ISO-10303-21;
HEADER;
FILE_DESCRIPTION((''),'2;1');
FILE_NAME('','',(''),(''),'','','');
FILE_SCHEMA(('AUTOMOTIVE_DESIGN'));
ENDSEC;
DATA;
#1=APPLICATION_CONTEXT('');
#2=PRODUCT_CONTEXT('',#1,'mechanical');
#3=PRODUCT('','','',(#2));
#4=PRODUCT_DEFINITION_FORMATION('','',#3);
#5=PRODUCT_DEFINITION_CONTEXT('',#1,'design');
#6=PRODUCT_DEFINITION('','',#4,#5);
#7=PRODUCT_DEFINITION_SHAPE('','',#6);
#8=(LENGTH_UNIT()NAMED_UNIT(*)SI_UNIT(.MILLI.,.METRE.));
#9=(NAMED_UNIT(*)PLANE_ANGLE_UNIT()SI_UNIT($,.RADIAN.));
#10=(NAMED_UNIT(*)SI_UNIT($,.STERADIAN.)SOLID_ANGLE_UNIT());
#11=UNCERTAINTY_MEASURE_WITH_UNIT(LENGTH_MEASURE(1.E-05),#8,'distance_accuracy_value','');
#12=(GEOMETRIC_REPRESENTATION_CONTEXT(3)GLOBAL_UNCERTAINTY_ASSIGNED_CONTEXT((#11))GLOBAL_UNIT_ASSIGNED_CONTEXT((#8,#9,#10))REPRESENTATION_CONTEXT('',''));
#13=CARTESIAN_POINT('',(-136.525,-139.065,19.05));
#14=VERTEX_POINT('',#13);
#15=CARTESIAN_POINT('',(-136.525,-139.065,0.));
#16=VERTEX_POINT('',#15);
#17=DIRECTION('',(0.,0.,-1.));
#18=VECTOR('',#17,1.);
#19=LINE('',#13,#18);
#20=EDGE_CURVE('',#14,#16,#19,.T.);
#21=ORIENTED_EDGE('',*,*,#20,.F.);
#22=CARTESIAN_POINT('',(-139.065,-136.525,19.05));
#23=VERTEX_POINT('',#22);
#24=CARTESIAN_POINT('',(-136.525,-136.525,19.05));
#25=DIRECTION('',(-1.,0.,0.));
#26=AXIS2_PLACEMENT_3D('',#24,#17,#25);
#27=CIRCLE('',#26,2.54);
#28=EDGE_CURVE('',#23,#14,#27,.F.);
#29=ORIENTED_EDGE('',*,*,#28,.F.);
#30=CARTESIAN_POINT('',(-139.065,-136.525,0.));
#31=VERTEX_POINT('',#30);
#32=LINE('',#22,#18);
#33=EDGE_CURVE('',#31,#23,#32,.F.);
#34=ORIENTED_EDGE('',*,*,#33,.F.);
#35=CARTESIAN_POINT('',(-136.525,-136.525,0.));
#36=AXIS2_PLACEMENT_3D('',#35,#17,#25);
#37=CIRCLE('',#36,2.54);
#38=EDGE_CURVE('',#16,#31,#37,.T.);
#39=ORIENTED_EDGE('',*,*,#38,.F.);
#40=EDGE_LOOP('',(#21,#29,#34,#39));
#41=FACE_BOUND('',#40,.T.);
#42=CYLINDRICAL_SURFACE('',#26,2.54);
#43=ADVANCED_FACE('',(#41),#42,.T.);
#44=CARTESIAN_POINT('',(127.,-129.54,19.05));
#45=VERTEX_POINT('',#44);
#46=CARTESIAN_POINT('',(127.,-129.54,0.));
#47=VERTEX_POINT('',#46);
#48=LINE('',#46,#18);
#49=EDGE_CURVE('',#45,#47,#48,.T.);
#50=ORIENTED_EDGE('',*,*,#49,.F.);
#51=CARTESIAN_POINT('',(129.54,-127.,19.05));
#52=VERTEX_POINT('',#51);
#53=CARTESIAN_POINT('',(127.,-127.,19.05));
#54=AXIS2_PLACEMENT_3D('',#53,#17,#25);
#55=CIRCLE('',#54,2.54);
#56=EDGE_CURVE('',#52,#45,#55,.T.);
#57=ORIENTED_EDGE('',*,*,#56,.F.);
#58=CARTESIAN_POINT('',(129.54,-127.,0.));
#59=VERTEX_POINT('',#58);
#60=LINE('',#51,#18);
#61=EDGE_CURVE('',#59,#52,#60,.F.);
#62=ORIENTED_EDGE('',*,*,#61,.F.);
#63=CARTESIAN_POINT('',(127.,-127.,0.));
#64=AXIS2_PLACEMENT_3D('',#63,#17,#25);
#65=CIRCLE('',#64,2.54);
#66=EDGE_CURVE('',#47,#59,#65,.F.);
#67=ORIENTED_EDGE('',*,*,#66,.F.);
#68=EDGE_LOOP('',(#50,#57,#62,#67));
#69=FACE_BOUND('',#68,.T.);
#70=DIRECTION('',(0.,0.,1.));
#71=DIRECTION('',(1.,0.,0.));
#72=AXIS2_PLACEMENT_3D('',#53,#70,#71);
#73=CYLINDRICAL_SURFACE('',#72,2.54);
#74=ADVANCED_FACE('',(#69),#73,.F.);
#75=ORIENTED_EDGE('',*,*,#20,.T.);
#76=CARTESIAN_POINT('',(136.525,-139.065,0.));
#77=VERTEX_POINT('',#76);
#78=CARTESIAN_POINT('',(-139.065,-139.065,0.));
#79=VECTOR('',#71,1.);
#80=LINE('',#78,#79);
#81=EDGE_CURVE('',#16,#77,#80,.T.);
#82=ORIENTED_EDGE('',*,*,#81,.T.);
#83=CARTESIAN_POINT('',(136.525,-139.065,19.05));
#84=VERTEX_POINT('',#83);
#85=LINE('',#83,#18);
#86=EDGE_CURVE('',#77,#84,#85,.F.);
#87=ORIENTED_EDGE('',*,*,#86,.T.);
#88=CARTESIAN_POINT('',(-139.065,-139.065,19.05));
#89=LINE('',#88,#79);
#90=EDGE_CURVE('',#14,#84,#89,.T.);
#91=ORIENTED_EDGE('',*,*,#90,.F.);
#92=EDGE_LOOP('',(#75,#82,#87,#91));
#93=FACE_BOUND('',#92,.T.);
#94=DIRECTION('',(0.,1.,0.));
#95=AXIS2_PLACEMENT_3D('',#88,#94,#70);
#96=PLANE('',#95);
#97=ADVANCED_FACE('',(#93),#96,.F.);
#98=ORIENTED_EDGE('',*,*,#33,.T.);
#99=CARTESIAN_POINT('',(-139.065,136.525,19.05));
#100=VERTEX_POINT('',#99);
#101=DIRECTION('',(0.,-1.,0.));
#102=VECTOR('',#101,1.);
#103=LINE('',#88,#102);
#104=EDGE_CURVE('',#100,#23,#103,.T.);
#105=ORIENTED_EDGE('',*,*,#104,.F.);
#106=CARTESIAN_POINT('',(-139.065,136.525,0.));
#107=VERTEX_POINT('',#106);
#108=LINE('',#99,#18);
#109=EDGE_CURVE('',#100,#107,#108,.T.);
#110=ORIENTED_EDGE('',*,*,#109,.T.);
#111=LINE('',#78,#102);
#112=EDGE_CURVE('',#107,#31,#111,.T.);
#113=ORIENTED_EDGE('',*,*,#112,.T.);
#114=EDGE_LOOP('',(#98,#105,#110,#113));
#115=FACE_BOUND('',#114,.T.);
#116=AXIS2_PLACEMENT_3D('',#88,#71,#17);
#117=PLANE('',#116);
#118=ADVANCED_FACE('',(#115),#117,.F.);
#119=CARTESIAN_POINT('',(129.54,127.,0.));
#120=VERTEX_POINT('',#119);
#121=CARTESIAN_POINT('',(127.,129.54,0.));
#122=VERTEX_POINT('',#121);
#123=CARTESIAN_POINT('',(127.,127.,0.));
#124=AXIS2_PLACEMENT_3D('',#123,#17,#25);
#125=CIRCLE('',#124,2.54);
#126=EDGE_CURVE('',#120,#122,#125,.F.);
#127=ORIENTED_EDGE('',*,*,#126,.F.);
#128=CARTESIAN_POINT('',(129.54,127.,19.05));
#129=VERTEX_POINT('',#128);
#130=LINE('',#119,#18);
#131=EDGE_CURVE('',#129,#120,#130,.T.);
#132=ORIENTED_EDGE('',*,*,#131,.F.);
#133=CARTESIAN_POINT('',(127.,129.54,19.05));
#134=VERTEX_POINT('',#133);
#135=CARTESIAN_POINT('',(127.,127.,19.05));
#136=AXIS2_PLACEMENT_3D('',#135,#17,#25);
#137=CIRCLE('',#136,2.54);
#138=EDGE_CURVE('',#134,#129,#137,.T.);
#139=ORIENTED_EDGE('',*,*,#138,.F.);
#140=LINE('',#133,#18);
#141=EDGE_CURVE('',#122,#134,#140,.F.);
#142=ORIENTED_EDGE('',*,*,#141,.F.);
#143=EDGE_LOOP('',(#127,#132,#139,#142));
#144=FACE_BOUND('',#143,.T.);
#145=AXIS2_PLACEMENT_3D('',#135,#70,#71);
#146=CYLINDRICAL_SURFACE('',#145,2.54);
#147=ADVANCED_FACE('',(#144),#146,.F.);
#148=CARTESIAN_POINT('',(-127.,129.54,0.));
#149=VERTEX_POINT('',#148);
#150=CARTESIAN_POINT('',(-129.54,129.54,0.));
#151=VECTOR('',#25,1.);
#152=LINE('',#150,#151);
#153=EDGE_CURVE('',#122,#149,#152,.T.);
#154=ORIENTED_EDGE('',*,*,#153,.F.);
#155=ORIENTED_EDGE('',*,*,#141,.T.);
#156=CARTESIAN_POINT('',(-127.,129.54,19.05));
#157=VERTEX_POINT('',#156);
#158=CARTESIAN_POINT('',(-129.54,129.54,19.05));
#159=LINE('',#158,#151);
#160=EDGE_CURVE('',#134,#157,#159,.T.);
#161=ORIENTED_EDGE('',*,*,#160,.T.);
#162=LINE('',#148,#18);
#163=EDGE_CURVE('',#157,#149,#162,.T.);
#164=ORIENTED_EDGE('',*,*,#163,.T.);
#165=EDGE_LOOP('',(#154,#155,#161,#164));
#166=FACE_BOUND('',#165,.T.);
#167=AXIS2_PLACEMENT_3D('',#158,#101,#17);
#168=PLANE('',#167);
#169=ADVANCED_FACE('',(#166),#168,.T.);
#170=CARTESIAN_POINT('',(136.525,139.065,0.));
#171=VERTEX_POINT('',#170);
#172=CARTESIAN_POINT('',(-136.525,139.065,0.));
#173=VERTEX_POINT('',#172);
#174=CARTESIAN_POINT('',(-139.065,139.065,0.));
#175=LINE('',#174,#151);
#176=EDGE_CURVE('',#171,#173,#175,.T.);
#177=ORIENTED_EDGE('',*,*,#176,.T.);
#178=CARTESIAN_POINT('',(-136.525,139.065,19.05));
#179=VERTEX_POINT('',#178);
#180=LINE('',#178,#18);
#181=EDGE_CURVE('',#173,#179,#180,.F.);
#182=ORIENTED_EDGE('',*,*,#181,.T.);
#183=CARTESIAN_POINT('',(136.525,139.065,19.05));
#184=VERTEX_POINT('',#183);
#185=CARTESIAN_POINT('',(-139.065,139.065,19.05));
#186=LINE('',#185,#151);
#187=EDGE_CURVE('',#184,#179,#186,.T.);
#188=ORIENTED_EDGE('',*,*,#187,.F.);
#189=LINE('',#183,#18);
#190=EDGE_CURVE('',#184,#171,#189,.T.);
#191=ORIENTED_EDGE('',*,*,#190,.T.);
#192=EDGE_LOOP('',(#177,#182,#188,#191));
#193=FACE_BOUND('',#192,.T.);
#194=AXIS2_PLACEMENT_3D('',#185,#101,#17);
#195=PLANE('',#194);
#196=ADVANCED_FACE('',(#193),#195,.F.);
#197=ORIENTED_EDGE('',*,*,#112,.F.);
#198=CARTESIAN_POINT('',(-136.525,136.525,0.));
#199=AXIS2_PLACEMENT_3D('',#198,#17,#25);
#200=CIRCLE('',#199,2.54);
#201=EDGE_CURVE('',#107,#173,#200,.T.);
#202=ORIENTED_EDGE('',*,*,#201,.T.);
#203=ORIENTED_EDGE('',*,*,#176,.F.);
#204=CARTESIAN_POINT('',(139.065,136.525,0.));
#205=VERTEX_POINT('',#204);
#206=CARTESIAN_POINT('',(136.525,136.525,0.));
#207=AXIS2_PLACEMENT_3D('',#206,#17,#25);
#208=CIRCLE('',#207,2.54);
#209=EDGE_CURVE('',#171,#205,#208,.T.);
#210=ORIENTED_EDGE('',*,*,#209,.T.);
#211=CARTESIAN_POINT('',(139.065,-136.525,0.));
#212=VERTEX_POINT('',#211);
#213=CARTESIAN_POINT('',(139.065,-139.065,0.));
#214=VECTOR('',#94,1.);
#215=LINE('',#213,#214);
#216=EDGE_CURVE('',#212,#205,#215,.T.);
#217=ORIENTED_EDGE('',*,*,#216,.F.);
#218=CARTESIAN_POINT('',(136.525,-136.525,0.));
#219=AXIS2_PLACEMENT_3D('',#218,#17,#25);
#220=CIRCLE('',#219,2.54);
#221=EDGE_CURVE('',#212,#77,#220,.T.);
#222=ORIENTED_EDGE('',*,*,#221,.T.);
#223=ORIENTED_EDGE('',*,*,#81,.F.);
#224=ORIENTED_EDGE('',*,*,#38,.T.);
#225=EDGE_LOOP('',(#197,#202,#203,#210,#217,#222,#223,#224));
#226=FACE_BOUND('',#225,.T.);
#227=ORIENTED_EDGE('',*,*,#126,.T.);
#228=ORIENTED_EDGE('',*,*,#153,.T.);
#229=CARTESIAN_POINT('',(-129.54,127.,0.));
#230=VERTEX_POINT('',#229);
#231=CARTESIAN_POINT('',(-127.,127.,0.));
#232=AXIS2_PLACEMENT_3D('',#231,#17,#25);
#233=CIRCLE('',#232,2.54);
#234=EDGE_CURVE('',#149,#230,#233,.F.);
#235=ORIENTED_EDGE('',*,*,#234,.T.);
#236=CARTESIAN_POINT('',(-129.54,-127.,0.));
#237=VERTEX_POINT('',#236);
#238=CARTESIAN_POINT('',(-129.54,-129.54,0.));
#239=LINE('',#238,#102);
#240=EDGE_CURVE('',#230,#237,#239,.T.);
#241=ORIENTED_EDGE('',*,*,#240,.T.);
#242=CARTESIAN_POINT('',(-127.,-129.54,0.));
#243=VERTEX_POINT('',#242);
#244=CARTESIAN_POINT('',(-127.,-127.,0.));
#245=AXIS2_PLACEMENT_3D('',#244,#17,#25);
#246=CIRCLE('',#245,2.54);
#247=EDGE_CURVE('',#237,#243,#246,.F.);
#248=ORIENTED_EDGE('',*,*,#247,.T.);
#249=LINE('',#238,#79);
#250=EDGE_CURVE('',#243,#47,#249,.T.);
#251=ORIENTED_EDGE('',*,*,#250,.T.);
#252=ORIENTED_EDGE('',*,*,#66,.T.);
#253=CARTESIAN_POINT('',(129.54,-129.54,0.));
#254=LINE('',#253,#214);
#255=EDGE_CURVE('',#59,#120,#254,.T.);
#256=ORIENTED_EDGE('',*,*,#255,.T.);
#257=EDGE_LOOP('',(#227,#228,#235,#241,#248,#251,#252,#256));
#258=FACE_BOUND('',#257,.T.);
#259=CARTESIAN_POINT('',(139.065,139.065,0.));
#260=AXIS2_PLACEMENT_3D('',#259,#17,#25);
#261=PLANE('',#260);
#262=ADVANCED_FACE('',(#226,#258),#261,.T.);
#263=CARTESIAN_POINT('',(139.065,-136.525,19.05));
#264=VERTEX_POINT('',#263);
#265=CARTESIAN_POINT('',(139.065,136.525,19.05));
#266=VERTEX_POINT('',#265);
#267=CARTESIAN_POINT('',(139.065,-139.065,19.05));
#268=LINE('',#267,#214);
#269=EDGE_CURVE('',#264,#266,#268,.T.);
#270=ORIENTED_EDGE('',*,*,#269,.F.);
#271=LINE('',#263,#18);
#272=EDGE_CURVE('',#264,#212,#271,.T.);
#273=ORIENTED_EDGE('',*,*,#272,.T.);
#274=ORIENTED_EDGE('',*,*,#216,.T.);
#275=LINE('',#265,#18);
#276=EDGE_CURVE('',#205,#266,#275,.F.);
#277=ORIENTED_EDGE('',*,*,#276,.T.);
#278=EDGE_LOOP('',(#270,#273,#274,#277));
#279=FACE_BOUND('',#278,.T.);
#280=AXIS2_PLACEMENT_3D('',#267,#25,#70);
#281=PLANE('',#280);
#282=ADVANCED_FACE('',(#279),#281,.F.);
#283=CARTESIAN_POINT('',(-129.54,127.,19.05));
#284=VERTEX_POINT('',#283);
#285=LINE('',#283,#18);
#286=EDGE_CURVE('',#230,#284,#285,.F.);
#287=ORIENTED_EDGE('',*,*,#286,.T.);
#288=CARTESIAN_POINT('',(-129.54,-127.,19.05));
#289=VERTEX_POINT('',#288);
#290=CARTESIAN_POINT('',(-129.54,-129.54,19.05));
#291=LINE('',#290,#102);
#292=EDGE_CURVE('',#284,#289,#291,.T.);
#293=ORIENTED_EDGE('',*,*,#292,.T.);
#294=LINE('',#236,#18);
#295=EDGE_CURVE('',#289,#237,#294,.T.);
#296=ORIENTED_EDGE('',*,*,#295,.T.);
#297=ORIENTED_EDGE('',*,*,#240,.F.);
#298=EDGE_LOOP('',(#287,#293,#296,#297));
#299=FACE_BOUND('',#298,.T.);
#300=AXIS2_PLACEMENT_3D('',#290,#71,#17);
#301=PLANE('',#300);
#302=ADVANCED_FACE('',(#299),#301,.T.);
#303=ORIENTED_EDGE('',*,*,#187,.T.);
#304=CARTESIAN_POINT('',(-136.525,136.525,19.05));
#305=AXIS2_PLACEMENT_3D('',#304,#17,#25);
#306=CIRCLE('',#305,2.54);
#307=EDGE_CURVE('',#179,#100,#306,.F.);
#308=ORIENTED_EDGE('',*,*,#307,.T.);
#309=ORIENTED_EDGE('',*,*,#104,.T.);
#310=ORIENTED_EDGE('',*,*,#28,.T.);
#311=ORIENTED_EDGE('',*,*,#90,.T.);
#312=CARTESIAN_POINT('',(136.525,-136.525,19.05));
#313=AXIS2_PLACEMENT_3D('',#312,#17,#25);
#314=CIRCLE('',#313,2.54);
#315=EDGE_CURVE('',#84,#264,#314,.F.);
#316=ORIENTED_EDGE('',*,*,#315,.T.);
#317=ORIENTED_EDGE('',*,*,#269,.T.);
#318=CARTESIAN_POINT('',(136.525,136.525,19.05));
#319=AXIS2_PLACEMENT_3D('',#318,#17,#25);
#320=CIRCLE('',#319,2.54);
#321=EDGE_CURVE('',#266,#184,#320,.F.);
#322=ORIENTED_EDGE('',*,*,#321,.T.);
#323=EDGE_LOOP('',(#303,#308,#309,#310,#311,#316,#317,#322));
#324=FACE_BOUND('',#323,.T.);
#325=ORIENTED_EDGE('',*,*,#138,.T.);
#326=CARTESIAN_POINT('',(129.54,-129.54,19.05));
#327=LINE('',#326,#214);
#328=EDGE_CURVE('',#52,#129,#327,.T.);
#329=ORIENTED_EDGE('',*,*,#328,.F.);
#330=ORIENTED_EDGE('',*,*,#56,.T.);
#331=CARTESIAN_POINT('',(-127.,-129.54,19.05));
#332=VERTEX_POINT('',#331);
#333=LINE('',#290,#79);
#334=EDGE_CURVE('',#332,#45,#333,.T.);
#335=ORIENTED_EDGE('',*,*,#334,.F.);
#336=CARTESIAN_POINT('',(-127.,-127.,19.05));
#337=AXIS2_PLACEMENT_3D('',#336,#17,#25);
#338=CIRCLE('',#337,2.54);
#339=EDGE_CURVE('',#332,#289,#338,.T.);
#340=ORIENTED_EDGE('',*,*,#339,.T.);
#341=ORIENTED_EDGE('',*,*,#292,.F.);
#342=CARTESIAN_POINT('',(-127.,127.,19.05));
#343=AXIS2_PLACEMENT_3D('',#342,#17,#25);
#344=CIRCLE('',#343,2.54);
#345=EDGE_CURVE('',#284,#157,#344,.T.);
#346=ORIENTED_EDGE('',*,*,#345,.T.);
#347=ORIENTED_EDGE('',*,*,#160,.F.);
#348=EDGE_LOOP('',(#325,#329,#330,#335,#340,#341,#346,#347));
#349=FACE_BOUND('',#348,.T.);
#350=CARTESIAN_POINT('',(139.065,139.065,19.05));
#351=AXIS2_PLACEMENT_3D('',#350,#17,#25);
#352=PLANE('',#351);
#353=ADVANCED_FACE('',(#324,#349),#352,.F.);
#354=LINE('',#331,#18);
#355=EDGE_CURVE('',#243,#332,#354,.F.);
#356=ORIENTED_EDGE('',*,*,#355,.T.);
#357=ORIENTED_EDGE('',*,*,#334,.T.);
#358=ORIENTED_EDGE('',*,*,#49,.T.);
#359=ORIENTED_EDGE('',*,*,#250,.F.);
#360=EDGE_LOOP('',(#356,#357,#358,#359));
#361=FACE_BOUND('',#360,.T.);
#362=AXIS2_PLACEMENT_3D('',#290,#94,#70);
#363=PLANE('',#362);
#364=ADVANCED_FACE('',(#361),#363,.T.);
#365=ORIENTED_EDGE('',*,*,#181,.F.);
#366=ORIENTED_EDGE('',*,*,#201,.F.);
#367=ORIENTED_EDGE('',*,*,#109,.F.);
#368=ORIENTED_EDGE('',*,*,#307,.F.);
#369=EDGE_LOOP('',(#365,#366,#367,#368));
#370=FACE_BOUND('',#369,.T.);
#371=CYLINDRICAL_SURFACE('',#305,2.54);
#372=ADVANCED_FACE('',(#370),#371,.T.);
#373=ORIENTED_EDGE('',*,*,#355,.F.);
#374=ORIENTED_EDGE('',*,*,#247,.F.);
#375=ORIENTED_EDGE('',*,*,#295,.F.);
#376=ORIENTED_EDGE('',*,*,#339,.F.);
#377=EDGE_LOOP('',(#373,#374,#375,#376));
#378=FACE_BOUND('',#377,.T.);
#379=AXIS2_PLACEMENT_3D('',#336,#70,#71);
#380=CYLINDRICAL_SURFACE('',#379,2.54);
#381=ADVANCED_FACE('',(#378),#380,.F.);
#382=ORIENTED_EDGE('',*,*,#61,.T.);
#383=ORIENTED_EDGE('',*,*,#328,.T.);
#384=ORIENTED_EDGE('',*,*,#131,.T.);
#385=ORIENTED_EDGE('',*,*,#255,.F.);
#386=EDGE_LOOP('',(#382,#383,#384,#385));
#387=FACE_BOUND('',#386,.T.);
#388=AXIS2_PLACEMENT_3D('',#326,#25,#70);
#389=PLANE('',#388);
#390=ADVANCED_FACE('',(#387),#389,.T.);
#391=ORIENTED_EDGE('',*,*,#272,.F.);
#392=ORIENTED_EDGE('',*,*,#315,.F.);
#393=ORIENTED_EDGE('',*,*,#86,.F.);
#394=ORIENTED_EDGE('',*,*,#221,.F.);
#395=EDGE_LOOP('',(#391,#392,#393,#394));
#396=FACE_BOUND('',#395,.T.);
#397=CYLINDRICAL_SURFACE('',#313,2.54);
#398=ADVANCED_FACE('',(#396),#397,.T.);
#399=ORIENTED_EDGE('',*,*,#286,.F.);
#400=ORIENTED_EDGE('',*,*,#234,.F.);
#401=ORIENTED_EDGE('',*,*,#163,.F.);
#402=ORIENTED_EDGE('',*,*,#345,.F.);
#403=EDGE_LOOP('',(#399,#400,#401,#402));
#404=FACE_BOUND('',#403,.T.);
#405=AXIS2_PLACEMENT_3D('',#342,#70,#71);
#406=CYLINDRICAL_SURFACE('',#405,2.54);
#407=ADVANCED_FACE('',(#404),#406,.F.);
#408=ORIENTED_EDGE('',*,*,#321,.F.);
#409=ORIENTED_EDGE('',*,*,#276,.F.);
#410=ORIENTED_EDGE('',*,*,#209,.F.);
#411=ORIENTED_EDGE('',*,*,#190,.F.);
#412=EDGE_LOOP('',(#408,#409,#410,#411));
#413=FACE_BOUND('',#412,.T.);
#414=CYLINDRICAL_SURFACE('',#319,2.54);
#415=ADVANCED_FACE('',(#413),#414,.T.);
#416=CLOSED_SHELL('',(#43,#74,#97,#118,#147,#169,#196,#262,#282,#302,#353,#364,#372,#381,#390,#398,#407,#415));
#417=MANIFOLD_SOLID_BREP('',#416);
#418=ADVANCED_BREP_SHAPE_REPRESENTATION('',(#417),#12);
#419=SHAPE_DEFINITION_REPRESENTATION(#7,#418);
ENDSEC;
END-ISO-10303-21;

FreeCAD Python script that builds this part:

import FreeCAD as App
import Part
import Sketcher

V = App.Vector
Q = App.Units.Quantity


def edges_at(feature, points):
    """Names of the edges that pass closest to the given points."""
    edges = feature.Shape.Edges
    near = lambda p: min(range(len(edges)), key=lambda i: edges[i].distToShape(Part.Vertex(*p))[0])
    return sorted({f"Edge{near(p) + 1}" for p in points})


def add_polygon(sketch, points):
    """Adds a closed chain of lines whose ends are joined by coincident constraints."""
    first, n = sketch.GeometryCount, len(points)
    for a, b in zip(points, points[1:] + points[:1]):
        sketch.addGeometry(Part.LineSegment(App.Vector(*a, 0), App.Vector(*b, 0)), False)
    for i in range(n):
        sketch.addConstraint(Sketcher.Constraint("Coincident", first + i, 2, first + (i + 1) % n, 1))

doc = App.newDocument("Part")
body = doc.addObject("PartDesign::Body", "Body")

# Sketch on XY plane
sketch1 = body.newObject("Sketcher::SketchObject", "Sketch")
sketch1.AttachmentSupport = (doc.getObject("XY_Plane"), [""])
sketch1.MapMode = "FlatFace"
add_polygon(sketch1, [(-139.065, 139.065), (-139.065, -139.065), (139.065, -139.065), (139.065, 139.065)])  # lines 0-3
add_polygon(sketch1, [(129.54, -129.54), (-129.54, -129.54), (-129.54, 129.54), (129.54, 129.54)])  # lines 4-7
sketch1.addConstraint(Sketcher.Constraint("Vertical", 0))
sketch1.addConstraint(Sketcher.Constraint("Horizontal", 1))
sketch1.addConstraint(Sketcher.Constraint("Vertical", 2))
sketch1.addConstraint(Sketcher.Constraint("Horizontal", 3))
sketch1.addConstraint(Sketcher.Constraint("Horizontal", 4))
sketch1.addConstraint(Sketcher.Constraint("Vertical", 5))
sketch1.addConstraint(Sketcher.Constraint("Horizontal", 6))
sketch1.addConstraint(Sketcher.Constraint("Vertical", 7))
sketch1.addConstraint(Sketcher.Constraint("Symmetric", 0, 2, 2, 2, -1, 1))
sketch1.addConstraint(Sketcher.Constraint("Symmetric", 4, 2, 6, 2, -1, 1))
sketch1.addConstraint(Sketcher.Constraint("Equal", 3, 0))
sketch1.addConstraint(Sketcher.Constraint("Equal", 6, 5))
sketch1.addConstraint(Sketcher.Constraint("DistanceX", 4, 2, 4, 1, Q("10.2 in")))
sketch1.addConstraint(Sketcher.Constraint("DistanceX", 1, 1, 1, 2, Q("10.95 in")))
pad1 = body.newObject("PartDesign::Pad", "Pad")
pad1.Profile = sketch1
pad1.Length = Q("0.75 in")
doc.recompute()

fillet = body.newObject("PartDesign::Fillet", "Fillet")
fillet.Base = (pad1, edges_at(pad1, [
    (129.54, -129.54, 9.525),
    (129.54, 129.54, 9.525),
    (-129.54, 129.54, 9.525),
    (-129.54, -129.54, 9.525),
    (139.065, -139.065, 9.525),
    (-139.065, -139.065, 9.525),
    (-139.065, 139.065, 9.525),
    (139.065, 139.065, 9.525),
]))
fillet.Radius = Q("0.1 in")

doc.recompute()
